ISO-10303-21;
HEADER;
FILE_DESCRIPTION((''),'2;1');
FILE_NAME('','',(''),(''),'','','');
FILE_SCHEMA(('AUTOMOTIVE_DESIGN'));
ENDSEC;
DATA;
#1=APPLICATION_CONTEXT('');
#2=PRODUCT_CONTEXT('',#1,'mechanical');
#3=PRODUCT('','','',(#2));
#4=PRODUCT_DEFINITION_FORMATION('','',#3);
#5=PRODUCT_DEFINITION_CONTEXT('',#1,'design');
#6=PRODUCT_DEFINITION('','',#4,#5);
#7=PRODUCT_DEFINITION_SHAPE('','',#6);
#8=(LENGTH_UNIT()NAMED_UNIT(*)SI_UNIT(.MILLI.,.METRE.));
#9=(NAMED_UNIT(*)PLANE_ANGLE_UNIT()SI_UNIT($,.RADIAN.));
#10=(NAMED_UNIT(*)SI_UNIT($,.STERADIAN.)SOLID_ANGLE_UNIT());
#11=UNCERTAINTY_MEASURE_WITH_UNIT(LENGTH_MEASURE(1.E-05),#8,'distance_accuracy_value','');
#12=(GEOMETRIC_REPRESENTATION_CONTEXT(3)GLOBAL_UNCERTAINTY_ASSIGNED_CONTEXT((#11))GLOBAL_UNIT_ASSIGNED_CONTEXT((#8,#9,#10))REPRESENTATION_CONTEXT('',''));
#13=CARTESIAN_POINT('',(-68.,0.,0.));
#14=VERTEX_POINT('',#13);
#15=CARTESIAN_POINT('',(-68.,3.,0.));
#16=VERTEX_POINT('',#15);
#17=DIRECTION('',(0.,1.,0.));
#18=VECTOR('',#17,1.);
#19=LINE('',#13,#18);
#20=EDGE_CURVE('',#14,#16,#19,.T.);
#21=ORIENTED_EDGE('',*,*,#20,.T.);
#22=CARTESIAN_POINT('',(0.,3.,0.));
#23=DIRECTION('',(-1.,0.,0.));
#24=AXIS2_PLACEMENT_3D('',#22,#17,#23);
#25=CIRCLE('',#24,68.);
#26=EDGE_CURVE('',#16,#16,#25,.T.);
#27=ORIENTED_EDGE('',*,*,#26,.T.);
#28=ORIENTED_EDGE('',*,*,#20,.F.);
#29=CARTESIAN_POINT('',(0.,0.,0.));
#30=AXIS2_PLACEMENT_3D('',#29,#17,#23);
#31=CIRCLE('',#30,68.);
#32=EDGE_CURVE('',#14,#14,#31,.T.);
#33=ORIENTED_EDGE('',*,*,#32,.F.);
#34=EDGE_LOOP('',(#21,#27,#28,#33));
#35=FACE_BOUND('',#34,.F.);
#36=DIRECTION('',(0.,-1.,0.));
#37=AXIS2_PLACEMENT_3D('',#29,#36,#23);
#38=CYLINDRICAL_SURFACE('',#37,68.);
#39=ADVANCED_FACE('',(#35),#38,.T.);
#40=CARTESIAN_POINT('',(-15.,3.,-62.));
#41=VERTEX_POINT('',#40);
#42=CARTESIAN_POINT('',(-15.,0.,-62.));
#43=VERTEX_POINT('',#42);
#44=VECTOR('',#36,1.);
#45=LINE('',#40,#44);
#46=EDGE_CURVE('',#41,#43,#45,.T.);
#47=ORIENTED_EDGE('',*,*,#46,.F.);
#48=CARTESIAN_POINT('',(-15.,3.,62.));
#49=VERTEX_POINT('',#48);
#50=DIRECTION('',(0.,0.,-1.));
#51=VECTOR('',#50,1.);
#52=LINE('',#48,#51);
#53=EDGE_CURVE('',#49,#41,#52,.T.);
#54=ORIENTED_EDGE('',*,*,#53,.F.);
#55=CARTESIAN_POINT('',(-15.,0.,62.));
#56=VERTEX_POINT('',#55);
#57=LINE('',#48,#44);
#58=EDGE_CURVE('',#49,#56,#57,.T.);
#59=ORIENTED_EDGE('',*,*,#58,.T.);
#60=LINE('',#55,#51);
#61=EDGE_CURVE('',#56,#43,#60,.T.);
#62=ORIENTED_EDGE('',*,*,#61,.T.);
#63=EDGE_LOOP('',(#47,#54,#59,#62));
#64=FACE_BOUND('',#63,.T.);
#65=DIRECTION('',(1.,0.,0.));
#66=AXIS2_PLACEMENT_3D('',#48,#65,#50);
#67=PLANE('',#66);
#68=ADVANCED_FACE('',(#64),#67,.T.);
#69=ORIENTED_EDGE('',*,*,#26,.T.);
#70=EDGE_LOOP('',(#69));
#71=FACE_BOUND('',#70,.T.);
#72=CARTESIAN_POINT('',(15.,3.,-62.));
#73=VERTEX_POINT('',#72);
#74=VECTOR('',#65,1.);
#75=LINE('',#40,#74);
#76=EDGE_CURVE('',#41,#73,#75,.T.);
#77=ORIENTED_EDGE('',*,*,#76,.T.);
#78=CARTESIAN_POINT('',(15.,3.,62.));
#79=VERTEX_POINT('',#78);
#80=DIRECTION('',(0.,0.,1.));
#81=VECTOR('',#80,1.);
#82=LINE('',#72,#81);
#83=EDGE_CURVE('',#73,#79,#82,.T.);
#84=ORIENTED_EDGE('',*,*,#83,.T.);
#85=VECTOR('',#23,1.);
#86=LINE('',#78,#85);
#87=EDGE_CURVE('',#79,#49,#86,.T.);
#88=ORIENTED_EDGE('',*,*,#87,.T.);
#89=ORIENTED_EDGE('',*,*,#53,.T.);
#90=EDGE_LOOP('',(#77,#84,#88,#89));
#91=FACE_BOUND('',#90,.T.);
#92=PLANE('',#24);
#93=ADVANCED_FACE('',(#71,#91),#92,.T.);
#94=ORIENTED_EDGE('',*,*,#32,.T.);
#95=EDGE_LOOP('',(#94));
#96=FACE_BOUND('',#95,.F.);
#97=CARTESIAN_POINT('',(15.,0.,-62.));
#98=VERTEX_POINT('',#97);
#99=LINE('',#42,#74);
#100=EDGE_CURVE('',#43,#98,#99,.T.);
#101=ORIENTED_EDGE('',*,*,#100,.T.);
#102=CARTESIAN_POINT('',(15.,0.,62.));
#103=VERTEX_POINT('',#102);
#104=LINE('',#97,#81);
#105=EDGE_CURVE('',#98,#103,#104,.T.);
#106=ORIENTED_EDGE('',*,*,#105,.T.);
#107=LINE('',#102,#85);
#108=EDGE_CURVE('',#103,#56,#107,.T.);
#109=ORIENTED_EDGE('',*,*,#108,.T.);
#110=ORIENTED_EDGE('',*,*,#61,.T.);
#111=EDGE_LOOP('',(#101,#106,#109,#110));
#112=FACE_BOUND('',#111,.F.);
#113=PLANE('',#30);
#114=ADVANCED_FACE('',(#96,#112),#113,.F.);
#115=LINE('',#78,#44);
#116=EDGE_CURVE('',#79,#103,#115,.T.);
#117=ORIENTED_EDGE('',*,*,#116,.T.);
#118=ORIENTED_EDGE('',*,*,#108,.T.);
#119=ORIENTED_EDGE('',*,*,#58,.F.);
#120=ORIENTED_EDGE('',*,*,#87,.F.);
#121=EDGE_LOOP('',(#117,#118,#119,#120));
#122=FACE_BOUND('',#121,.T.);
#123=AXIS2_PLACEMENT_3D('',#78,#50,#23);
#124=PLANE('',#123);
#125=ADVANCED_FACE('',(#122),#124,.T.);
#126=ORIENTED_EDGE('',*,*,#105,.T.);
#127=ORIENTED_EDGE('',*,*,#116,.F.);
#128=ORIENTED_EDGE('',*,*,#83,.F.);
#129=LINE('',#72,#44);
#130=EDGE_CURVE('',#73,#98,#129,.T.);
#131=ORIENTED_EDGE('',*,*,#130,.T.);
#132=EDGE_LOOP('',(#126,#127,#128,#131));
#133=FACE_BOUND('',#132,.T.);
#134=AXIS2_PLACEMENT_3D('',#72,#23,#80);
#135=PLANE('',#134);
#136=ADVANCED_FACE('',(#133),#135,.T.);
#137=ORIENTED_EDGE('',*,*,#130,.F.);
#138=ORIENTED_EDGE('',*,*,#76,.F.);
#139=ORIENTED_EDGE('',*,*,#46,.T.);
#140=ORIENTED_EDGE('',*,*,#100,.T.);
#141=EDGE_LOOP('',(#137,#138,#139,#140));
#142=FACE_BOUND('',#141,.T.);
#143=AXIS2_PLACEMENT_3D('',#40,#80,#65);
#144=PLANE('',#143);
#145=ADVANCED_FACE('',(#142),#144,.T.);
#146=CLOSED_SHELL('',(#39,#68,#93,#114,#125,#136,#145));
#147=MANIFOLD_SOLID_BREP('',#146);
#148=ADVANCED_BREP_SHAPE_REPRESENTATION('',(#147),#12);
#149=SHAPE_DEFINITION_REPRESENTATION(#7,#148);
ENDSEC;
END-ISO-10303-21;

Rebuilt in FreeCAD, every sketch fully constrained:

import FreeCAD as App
import Part
import Sketcher

V = App.Vector

doc = App.newDocument("Part")
params = doc.addObject("Spreadsheet::Sheet", "Params")
for row, (alias, value) in enumerate([
    ("sketch1_diameter", "136 mm"),
    ("pad1_length", "3 mm"),
    ("sketch2_width", "30 mm"),
    ("sketch2_height", "124 mm"),
    ("pocket1_length", "3 mm"),
], start=1):
    params.set(f"A{row}", alias)
    params.set(f"B{row}", "=" + value)
    params.setAlias(f"B{row}", alias)

body = doc.addObject("PartDesign::Body", "Body")

# Sketch on XZ plane
sketch1 = body.newObject("Sketcher::SketchObject", "Sketch")
sketch1.AttachmentSupport = (doc.getObject("XZ_Plane"), [""])
sketch1.MapMode = "FlatFace"
sketch1.addGeometry(Part.Circle(V(0, 0, 0), V(0, 0, 1), 68), False)
sketch1.addConstraint([
    Sketcher.Constraint("Coincident", 0, 3, -1, 1),
    Sketcher.Constraint("Diameter", 0, 136.0),
])
sketch1.setExpression("Constraints[1]", "Params.sketch1_diameter")
pad1 = body.newObject("PartDesign::Pad", "Pad")
pad1.Profile = sketch1
pad1.setExpression("Length", "Params.pad1_length")
pad1.Reversed = True

# Sketch on XZ plane
sketch2 = body.newObject("Sketcher::SketchObject", "Sketch001")
sketch2.AttachmentSupport = (doc.getObject("XZ_Plane"), [""])
sketch2.MapMode = "FlatFace"
sketch2.AttachmentOffset = App.Placement(V(0, 0, -3), App.Rotation())
sketch2.addGeometry([
    Part.LineSegment(V(-15, 62, 0), V(15, 62, 0)),
    Part.LineSegment(V(15, 62, 0), V(15, -62, 0)),
    Part.LineSegment(V(15, -62, 0), V(-15, -62, 0)),
    Part.LineSegment(V(-15, -62, 0), V(-15, 62, 0)),
], False)
sketch2.addConstraint([
    Sketcher.Constraint("Coincident", 0, 2, 1, 1),
    Sketcher.Constraint("Coincident", 1, 2, 2, 1),
    Sketcher.Constraint("Coincident", 2, 2, 3, 1),
    Sketcher.Constraint("Coincident", 3, 2, 0, 1),
    Sketcher.Constraint("Horizontal", 0),
    Sketcher.Constraint("Vertical", 1),
    Sketcher.Constraint("Horizontal", 2),
    Sketcher.Constraint("Vertical", 3),
    Sketcher.Constraint("Symmetric", 0, 2, 2, 2, -1, 1),
    Sketcher.Constraint("DistanceX", 0, 1, 0, 2, 30.0),
    Sketcher.Constraint("DistanceY", 1, 2, 1, 1, 124.0),
])
sketch2.setExpression("Constraints[9]", "Params.sketch2_width")
sketch2.setExpression("Constraints[10]", "Params.sketch2_height")
pocket1 = body.newObject("PartDesign::Pocket", "Pocket")
pocket1.Profile = sketch2
pocket1.setExpression("Length", "Params.pocket1_length")
pocket1.Reversed = True

doc.recompute()
